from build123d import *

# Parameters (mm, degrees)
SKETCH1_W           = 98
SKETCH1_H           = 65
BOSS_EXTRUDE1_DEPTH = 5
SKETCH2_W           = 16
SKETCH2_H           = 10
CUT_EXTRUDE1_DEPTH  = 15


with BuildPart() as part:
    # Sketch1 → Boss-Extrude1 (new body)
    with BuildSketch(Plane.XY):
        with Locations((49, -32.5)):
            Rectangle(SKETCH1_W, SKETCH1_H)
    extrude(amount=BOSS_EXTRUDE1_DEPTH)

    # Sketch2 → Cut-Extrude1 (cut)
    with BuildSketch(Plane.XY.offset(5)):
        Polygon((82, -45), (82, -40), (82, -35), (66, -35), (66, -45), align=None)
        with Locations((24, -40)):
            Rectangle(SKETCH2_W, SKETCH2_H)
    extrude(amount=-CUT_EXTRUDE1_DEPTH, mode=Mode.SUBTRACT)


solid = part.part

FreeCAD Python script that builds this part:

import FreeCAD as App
import Part
import Sketcher
from FreeCAD import Vector

doc = App.newDocument("Part")
body = doc.addObject("PartDesign::Body", "Body")

# Sketch on XY plane
sketch1 = doc.addObject("Sketcher::SketchObject", "Sketch")
body.addObject(sketch1)
sketch1.AttachmentSupport = (doc.XY_Plane, [""])
sketch1.MapMode = "FlatFace"
sketch1.addGeometry([
    Part.LineSegment(Vector(0, 0, 0), Vector(0, -65, 0)),
    Part.LineSegment(Vector(0, -65, 0), Vector(98, -65, 0)),
    Part.LineSegment(Vector(98, -65, 0), Vector(98, 0, 0)),
    Part.LineSegment(Vector(98, 0, 0), Vector(0, 0, 0)),
], False)
sketch1.addConstraint([
    Sketcher.Constraint("Coincident", 0, 2, 1, 1),
    Sketcher.Constraint("Coincident", 1, 2, 2, 1),
    Sketcher.Constraint("Coincident", 2, 2, 3, 1),
    Sketcher.Constraint("Coincident", 3, 2, 0, 1),
    Sketcher.Constraint("Vertical", 0),
    Sketcher.Constraint("Horizontal", 1),
    Sketcher.Constraint("Vertical", 2),
    Sketcher.Constraint("Horizontal", 3),
    Sketcher.Constraint("Coincident", 3, 2, -1, 1),
    Sketcher.Constraint("DistanceX", 1, 1, 1, 2, 98.0),
    Sketcher.Constraint("DistanceY", 0, 2, 0, 1, 65.0),
])
pad1 = doc.addObject("PartDesign::Pad", "Pad")
body.addObject(pad1)
pad1.Profile = sketch1
pad1.Length = 5

# Sketch on XY plane
sketch2 = doc.addObject("Sketcher::SketchObject", "Sketch001")
body.addObject(sketch2)
sketch2.AttachmentSupport = (doc.XY_Plane, [""])
sketch2.MapMode = "FlatFace"
sketch2.AttachmentOffset = App.Placement(Vector(0, 0, 5), App.Rotation())
sketch2.addGeometry([
    Part.LineSegment(Vector(82, -45, 0), Vector(82, -35, 0)),  # 0
    Part.LineSegment(Vector(82, -35, 0), Vector(66, -35, 0)),  # 1
    Part.LineSegment(Vector(66, -35, 0), Vector(66, -45, 0)),  # 2
    Part.LineSegment(Vector(66, -45, 0), Vector(82, -45, 0)),  # 3
    Part.LineSegment(Vector(16, -35, 0), Vector(16, -45, 0)),  # 4
    Part.LineSegment(Vector(16, -45, 0), Vector(32, -45, 0)),  # 5
    Part.LineSegment(Vector(32, -45, 0), Vector(32, -35, 0)),  # 6
    Part.LineSegment(Vector(32, -35, 0), Vector(16, -35, 0)),  # 7
], False)
sketch2.addConstraint([
    Sketcher.Constraint("Coincident", 0, 2, 1, 1),
    Sketcher.Constraint("Coincident", 1, 2, 2, 1),
    Sketcher.Constraint("Coincident", 2, 2, 3, 1),
    Sketcher.Constraint("Coincident", 3, 2, 0, 1),
    Sketcher.Constraint("Coincident", 4, 2, 5, 1),
    Sketcher.Constraint("Coincident", 5, 2, 6, 1),
    Sketcher.Constraint("Coincident", 6, 2, 7, 1),
    Sketcher.Constraint("Coincident", 7, 2, 4, 1),
    Sketcher.Constraint("Vertical", 0),
    Sketcher.Constraint("Horizontal", 1),
    Sketcher.Constraint("Vertical", 2),
    Sketcher.Constraint("Horizontal", 3),
    Sketcher.Constraint("Vertical", 4),
    Sketcher.Constraint("Horizontal", 5),
    Sketcher.Constraint("Vertical", 6),
    Sketcher.Constraint("Horizontal", 7),
    Sketcher.Constraint("Horizontal", 3, 2, 4, 2),
    Sketcher.Constraint("Horizontal", 1, 2, 6, 2),
    Sketcher.Constraint("Equal", 3, 5),
    Sketcher.Constraint("DistanceX", 1, 2, 1, 1, 16.0),
    Sketcher.Constraint("DistanceY", 0, 1, 0, 2, 10.0),
    Sketcher.Constraint("DistanceX", -1, 1, 0, 2, 82.0),
    Sketcher.Constraint("DistanceY", 0, 2, -1, 1, 35.0),
    Sketcher.Constraint("DistanceX", -1, 1, 4, 2, 16.0),
])
pocket1 = doc.addObject("PartDesign::Pocket", "Pocket")
body.addObject(pocket1)
pocket1.Profile = sketch2
pocket1.Length = 15

doc.recompute()
